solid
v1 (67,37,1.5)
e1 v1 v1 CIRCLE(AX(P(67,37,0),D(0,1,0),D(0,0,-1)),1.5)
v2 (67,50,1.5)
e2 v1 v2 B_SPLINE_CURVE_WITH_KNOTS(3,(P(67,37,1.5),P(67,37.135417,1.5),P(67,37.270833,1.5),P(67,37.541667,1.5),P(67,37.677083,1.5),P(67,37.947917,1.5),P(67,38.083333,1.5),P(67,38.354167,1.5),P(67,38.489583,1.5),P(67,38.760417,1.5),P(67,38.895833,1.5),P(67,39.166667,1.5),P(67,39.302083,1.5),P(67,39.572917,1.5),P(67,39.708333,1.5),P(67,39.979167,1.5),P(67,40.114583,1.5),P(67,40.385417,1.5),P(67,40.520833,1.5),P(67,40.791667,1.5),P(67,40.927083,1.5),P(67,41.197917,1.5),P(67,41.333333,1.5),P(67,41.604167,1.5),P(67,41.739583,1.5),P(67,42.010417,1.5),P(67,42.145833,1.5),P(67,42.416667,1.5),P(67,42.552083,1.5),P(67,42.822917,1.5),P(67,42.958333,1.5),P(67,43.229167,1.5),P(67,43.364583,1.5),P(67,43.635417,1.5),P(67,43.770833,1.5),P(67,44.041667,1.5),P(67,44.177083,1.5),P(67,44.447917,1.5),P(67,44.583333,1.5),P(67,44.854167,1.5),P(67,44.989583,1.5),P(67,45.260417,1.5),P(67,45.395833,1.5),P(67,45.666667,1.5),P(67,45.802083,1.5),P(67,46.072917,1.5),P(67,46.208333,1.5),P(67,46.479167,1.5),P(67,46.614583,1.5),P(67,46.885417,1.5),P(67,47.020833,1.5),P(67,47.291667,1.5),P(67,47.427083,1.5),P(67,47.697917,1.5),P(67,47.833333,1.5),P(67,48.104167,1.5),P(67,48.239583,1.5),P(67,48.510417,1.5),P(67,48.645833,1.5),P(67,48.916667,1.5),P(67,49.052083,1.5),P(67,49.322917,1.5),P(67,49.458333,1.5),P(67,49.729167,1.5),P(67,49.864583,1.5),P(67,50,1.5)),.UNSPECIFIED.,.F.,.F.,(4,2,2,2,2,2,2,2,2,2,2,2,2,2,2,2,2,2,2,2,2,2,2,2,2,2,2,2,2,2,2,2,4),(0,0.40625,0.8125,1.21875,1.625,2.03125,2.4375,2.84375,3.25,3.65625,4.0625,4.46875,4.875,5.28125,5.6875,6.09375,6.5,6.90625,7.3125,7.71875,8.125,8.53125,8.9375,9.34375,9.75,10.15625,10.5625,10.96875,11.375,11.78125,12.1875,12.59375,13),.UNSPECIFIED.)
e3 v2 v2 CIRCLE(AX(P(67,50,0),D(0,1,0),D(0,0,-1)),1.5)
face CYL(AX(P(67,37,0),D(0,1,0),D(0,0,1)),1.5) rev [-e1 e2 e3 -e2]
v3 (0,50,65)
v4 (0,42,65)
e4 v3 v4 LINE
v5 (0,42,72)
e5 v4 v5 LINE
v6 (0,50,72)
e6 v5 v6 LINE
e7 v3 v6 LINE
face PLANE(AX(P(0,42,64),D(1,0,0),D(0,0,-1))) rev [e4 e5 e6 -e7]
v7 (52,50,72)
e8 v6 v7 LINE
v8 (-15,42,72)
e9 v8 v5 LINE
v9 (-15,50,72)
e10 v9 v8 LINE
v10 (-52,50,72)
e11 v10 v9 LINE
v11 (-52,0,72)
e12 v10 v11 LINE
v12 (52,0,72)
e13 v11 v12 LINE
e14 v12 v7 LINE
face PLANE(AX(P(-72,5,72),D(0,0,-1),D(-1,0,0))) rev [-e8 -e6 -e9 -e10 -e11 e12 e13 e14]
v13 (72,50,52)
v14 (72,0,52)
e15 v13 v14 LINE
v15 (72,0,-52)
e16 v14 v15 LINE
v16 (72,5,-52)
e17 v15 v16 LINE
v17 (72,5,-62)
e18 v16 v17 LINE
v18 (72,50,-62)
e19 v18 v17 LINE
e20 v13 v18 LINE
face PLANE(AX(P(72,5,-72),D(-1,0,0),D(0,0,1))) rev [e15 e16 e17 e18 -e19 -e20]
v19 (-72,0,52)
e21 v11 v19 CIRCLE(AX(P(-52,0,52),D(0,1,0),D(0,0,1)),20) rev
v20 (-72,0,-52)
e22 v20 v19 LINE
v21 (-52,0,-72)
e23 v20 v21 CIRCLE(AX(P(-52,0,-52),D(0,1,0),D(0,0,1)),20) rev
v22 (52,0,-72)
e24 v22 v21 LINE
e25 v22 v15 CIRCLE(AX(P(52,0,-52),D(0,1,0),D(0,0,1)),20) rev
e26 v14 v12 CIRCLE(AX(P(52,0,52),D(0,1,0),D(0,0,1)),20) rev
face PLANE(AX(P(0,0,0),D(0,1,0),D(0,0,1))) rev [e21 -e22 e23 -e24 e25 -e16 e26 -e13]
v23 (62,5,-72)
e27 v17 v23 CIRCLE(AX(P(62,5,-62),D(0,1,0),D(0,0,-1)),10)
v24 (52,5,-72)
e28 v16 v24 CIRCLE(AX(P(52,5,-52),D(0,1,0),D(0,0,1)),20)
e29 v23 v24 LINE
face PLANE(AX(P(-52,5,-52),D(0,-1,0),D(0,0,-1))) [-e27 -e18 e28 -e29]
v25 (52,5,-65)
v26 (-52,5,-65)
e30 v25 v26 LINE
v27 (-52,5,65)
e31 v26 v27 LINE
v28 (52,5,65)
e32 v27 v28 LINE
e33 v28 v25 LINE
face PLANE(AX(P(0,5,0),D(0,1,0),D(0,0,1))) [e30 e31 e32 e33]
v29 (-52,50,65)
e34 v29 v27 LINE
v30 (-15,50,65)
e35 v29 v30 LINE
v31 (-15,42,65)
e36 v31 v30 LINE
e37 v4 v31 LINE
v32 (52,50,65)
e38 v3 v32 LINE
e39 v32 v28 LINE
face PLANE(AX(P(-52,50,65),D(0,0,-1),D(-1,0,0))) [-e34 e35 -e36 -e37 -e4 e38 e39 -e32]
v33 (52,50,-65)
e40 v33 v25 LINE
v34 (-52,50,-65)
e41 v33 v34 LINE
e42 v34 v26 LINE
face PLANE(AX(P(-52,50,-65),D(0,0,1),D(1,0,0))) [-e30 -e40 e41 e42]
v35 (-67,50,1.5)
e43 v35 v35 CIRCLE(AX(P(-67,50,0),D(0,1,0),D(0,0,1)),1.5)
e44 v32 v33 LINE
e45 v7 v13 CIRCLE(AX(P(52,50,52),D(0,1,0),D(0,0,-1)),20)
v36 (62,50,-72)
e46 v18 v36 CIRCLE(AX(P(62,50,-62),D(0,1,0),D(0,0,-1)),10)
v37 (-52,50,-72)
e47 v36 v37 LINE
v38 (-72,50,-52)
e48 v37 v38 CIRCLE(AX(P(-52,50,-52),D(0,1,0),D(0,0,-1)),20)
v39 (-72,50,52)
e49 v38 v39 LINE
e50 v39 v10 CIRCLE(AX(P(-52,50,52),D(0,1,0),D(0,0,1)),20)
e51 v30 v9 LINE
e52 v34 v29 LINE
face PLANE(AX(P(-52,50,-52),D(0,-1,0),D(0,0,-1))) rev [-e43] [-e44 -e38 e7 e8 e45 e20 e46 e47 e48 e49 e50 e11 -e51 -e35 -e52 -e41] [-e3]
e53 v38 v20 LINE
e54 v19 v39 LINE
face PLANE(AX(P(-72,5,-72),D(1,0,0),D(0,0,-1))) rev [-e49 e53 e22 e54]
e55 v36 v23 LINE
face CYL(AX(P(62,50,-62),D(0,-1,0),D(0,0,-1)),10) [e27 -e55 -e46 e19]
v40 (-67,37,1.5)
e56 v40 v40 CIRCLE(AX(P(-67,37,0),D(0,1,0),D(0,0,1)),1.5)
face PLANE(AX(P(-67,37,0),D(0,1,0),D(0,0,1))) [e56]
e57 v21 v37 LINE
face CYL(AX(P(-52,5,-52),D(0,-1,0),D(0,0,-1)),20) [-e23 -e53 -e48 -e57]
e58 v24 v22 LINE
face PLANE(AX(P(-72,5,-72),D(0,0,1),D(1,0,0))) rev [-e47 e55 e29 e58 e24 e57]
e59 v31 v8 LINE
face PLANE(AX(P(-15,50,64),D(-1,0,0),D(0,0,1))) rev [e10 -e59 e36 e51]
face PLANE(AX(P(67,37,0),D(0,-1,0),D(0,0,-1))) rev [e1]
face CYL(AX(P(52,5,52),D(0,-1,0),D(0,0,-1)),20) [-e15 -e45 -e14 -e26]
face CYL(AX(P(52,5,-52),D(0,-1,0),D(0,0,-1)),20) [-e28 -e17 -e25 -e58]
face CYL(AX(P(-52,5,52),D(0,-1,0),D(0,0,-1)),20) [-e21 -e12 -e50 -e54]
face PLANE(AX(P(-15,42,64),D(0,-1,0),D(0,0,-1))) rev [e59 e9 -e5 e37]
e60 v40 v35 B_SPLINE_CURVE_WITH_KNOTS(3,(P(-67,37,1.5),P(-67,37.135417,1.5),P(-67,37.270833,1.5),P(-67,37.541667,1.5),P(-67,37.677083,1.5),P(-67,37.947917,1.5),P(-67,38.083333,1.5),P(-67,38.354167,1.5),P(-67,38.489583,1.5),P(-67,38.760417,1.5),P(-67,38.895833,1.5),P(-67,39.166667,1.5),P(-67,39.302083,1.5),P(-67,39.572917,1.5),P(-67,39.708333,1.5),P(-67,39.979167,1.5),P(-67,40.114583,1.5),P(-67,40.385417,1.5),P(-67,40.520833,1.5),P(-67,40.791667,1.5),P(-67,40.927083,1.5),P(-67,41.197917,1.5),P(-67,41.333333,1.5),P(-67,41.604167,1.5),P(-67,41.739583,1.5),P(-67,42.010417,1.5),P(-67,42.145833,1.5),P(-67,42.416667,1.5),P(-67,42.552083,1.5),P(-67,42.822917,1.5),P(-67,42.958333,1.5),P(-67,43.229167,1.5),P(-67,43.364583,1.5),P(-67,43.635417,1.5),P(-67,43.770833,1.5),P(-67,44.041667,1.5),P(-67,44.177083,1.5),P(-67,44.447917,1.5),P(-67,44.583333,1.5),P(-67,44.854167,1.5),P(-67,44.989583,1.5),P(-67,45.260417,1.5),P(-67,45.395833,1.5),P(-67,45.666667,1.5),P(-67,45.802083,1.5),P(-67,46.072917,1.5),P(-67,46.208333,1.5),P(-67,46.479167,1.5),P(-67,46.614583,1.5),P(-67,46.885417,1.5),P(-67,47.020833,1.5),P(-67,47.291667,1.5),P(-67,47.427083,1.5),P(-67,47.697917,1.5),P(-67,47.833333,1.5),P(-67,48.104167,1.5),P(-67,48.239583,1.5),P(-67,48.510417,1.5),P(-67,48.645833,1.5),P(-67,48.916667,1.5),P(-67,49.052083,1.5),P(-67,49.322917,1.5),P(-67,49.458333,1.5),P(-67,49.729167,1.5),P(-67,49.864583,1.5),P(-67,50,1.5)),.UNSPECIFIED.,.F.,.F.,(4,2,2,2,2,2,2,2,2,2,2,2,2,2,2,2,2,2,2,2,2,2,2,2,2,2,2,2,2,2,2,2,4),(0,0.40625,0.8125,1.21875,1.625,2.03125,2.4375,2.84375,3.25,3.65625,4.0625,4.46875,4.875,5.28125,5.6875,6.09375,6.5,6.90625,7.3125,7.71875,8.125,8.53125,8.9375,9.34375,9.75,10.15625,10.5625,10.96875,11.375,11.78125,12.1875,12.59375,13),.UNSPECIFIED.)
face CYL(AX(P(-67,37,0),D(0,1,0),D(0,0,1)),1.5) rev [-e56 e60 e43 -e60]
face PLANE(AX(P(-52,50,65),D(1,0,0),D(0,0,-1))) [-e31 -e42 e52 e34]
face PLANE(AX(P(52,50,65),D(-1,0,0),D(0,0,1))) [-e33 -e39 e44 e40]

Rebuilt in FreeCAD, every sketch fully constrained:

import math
import FreeCAD as App
import Part
import Sketcher


def edges_at(feature, points):
    """Names of the edges that pass closest to the given points."""
    edges = feature.Shape.Edges
    near = lambda p: min(range(len(edges)), key=lambda i: edges[i].distToShape(Part.Vertex(*p))[0])
    return sorted({f"Edge{near(p) + 1}" for p in points})


def add_polygon(sketch, points):
    """Adds a closed chain of lines whose ends are joined by coincident constraints."""
    first, n = sketch.GeometryCount, len(points)
    for a, b in zip(points, points[1:] + points[:1]):
        sketch.addGeometry(Part.LineSegment(App.Vector(*a, 0), App.Vector(*b, 0)), False)
    for i in range(n):
        sketch.addConstraint(Sketcher.Constraint("Coincident", first + i, 2, first + (i + 1) % n, 1))

doc = App.newDocument("Part")
body = doc.addObject("PartDesign::Body", "Body")

# Sketch on XZ plane
sketch1 = body.newObject("Sketcher::SketchObject", "Sketch")
sketch1.AttachmentSupport = (doc.getObject("XZ_Plane"), [""])
sketch1.MapMode = "FlatFace"
add_polygon(sketch1, [(-72, -72), (-72, 72), (72, 72), (72, -72)])  # lines 0-3
sketch1.addConstraint(Sketcher.Constraint("Vertical", 0))
sketch1.addConstraint(Sketcher.Constraint("Horizontal", 1))
sketch1.addConstraint(Sketcher.Constraint("Vertical", 2))
sketch1.addConstraint(Sketcher.Constraint("Horizontal", 3))
sketch1.addConstraint(Sketcher.Constraint("Symmetric", 0, 2, 2, 2, -1, 1))
sketch1.addConstraint(Sketcher.Constraint("Equal", 3, 0))
sketch1.addConstraint(Sketcher.Constraint("DistanceX", 1, 1, 1, 2, 144.0))
pad1 = body.newObject("PartDesign::Pad", "Pad")
pad1.Profile = sketch1
pad1.Length = 5
pad1.Reversed = True
doc.recompute()

fillet = body.newObject("PartDesign::Fillet", "Fillet")
fillet.Base = (pad1, edges_at(pad1, [
    (72, 2.5, 72),
    (-72, 2.5, 72),
    (-72, 2.5, -72),
    (72, 2.5, -72),
]))
fillet.Radius = 20

# Sketch on XZ plane
sketch2 = body.newObject("Sketcher::SketchObject", "Sketch001")
sketch2.AttachmentSupport = (doc.getObject("XZ_Plane"), [""])
sketch2.MapMode = "FlatFace"
sketch2.AttachmentOffset = App.Placement(App.Vector(0, 0, -50), App.Rotation())
sketch2.addGeometry(Part.LineSegment(App.Vector(-72, -52, 0), App.Vector(-72, 52, 0)), False)  # 0
sketch2.addGeometry(Part.ArcOfCircle(Part.Circle(App.Vector(-52, 52, 0), App.Vector(0, 0, 1), 20), math.radians(90), math.radians(180)), False)  # 1
sketch2.addGeometry(Part.LineSegment(App.Vector(-52, 72, 0), App.Vector(52, 72, 0)), False)  # 2
sketch2.addGeometry(Part.ArcOfCircle(Part.Circle(App.Vector(52, 52, 0), App.Vector(0, 0, 1), 20), math.radians(0), math.radians(90)), False)  # 3
sketch2.addGeometry(Part.LineSegment(App.Vector(72, 52, 0), App.Vector(72, -62, 0)), False)  # 4
sketch2.addGeometry(Part.ArcOfCircle(Part.Circle(App.Vector(62, -62, 0), App.Vector(0, 0, 1), 10), math.radians(-90), math.radians(0)), False)  # 5
sketch2.addGeometry(Part.LineSegment(App.Vector(62, -72, 0), App.Vector(-52, -72, 0)), False)  # 6
sketch2.addGeometry(Part.ArcOfCircle(Part.Circle(App.Vector(-52, -52, 0), App.Vector(0, 0, 1), 20), math.radians(180), math.radians(270)), False)  # 7
add_polygon(sketch2, [(52, 65), (-52, 65), (-52, -65), (52, -65)])  # lines 8-11
sketch2.addConstraint(Sketcher.Constraint("Tangent", 0, 2, 1, 2))
sketch2.addConstraint(Sketcher.Constraint("Tangent", 1, 1, 2, 1))
sketch2.addConstraint(Sketcher.Constraint("Tangent", 2, 2, 3, 2))
sketch2.addConstraint(Sketcher.Constraint("Tangent", 3, 1, 4, 1))
sketch2.addConstraint(Sketcher.Constraint("Tangent", 4, 2, 5, 2))
sketch2.addConstraint(Sketcher.Constraint("Tangent", 5, 1, 6, 1))
sketch2.addConstraint(Sketcher.Constraint("Tangent", 6, 2, 7, 2))
sketch2.addConstraint(Sketcher.Constraint("Tangent", 7, 1, 0, 1))
sketch2.addConstraint(Sketcher.Constraint("Vertical", 0))
sketch2.addConstraint(Sketcher.Constraint("Horizontal", 2))
sketch2.addConstraint(Sketcher.Constraint("Vertical", 4))
sketch2.addConstraint(Sketcher.Constraint("Horizontal", 6))
sketch2.addConstraint(Sketcher.Constraint("Horizontal", 8))
sketch2.addConstraint(Sketcher.Constraint("Vertical", 9))
sketch2.addConstraint(Sketcher.Constraint("Horizontal", 10))
sketch2.addConstraint(Sketcher.Constraint("Vertical", 11))
sketch2.addConstraint(Sketcher.Constraint("Equal", 1, 3))
sketch2.addConstraint(Sketcher.Constraint("Equal", 3, 7))
sketch2.addConstraint(Sketcher.Constraint("Symmetric", 3, 3, 7, 3, -1, 1))
sketch2.addConstraint(Sketcher.Constraint("Symmetric", 8, 2, 10, 2, -1, 1))
sketch2.addConstraint(Sketcher.Constraint("Vertical", 6, 2, 8, 2))
sketch2.addConstraint(Sketcher.Constraint("Equal", 10, 0))
sketch2.addConstraint(Sketcher.Constraint("Radius", 1, 20.0))
sketch2.addConstraint(Sketcher.Constraint("Radius", 5, 10.0))
sketch2.addConstraint(Sketcher.Constraint("DistanceX", 2, 1, 2, 2, 104.0))
sketch2.addConstraint(Sketcher.Constraint("DistanceY", 9, 2, 9, 1, 130.0))
pad2 = body.newObject("PartDesign::Pad", "Pad001")
pad2.Profile = sketch2
pad2.Length = 45

# Sketch on XZ plane
sketch3 = body.newObject("Sketcher::SketchObject", "Sketch002")
sketch3.AttachmentSupport = (doc.getObject("XZ_Plane"), [""])
sketch3.MapMode = "FlatFace"
sketch3.AttachmentOffset = App.Placement(App.Vector(0, 0, -50), App.Rotation())
sketch3.addGeometry(Part.Circle(App.Vector(-67, 0, 0), App.Vector(0, 0, 1), 1.5), False)
sketch3.addGeometry(Part.Circle(App.Vector(67, 0, 0), App.Vector(0, 0, 1), 1.5), False)
sketch3.addConstraint(Sketcher.Constraint("Equal", 0, 1))
sketch3.addConstraint(Sketcher.Constraint("Symmetric", 0, 3, 1, 3, -1, 1))
sketch3.addConstraint(Sketcher.Constraint("PointOnObject", 0, 3, -1))
sketch3.addConstraint(Sketcher.Constraint("Diameter", 0, 3.0))
sketch3.addConstraint(Sketcher.Constraint("DistanceX", 0, 3, -1, 1, 67.0))
pocket1 = body.newObject("PartDesign::Pocket", "Pocket")
pocket1.Profile = sketch3
pocket1.Length = 13
pocket1.Reversed = True

# Sketch on XY plane
sketch4 = body.newObject("Sketcher::SketchObject", "Sketch003")
sketch4.AttachmentSupport = (doc.getObject("XY_Plane"), [""])
sketch4.MapMode = "FlatFace"
sketch4.AttachmentOffset = App.Placement(App.Vector(0, 0, 72), App.Rotation())
add_polygon(sketch4, [(-15, 50), (-15, 42), (0, 42), (0, 50)])  # lines 0-3
sketch4.addConstraint(Sketcher.Constraint("Vertical", 0))
sketch4.addConstraint(Sketcher.Constraint("Horizontal", 1))
sketch4.addConstraint(Sketcher.Constraint("Vertical", 2))
sketch4.addConstraint(Sketcher.Constraint("Horizontal", 3))
sketch4.addConstraint(Sketcher.Constraint("PointOnObject", 1, 2, -2))
sketch4.addConstraint(Sketcher.Constraint("DistanceX", 1, 1, 1, 2, 15.0))
sketch4.addConstraint(Sketcher.Constraint("DistanceY", 0, 2, 0, 1, 8.0))
sketch4.addConstraint(Sketcher.Constraint("DistanceY", -1, 1, 0, 2, 42.0))
pocket2 = body.newObject("PartDesign::Pocket", "Pocket001")
pocket2.Profile = sketch4
pocket2.Length = 8

doc.recompute()
